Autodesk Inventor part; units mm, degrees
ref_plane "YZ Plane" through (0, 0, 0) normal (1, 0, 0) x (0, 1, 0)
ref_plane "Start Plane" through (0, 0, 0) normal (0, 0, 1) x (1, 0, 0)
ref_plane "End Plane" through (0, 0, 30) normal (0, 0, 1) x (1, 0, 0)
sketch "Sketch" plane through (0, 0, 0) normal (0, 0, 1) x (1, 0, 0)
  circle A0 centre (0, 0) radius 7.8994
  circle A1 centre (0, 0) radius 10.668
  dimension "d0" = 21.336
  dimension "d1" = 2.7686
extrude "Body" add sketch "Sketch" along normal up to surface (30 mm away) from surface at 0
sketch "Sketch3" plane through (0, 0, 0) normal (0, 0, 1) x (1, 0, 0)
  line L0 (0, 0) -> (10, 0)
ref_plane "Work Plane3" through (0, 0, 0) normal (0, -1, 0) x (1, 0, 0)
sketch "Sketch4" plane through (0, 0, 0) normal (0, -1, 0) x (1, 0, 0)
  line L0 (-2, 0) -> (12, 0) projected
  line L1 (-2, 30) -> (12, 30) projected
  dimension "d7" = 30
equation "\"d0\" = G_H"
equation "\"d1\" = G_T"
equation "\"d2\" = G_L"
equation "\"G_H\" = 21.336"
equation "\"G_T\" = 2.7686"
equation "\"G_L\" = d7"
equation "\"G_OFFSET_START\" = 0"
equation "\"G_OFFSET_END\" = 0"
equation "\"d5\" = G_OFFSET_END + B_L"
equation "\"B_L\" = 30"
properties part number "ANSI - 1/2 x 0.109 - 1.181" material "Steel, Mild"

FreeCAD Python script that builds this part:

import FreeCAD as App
import Part
import Sketcher
Q = App.Units.Quantity

doc = App.newDocument("Part")
body = doc.addObject("PartDesign::Body", "Body")

sketch1 = body.newObject("Sketcher::SketchObject", "Sketch")
sketch1.AttachmentSupport = (doc.getObject("XY_Plane"), [""])
sketch1.MapMode = "FlatFace"
sketch1.addGeometry(Part.Circle(App.Vector(0, 0, 0), App.Vector(0, 0, 1), 11), False)
sketch1.addGeometry(Part.Circle(App.Vector(0, 0, 0), App.Vector(0, 0, 1), 8), False)
sketch1.addConstraint(Sketcher.Constraint("Coincident", 0, 3, -1, 1))
sketch1.addConstraint(Sketcher.Constraint("Coincident", 1, 3, -1, 1))
sketch1.addConstraint(Sketcher.Constraint("Diameter", 0, Q("0.84 in")))
sketch1.addConstraint(Sketcher.Constraint("Diameter", 1, Q("0.622 in")))
pad1 = body.newObject("PartDesign::Pad", "Pad")
pad1.Profile = sketch1
pad1.Length = Q("1.1811024 in")

doc.recompute()
